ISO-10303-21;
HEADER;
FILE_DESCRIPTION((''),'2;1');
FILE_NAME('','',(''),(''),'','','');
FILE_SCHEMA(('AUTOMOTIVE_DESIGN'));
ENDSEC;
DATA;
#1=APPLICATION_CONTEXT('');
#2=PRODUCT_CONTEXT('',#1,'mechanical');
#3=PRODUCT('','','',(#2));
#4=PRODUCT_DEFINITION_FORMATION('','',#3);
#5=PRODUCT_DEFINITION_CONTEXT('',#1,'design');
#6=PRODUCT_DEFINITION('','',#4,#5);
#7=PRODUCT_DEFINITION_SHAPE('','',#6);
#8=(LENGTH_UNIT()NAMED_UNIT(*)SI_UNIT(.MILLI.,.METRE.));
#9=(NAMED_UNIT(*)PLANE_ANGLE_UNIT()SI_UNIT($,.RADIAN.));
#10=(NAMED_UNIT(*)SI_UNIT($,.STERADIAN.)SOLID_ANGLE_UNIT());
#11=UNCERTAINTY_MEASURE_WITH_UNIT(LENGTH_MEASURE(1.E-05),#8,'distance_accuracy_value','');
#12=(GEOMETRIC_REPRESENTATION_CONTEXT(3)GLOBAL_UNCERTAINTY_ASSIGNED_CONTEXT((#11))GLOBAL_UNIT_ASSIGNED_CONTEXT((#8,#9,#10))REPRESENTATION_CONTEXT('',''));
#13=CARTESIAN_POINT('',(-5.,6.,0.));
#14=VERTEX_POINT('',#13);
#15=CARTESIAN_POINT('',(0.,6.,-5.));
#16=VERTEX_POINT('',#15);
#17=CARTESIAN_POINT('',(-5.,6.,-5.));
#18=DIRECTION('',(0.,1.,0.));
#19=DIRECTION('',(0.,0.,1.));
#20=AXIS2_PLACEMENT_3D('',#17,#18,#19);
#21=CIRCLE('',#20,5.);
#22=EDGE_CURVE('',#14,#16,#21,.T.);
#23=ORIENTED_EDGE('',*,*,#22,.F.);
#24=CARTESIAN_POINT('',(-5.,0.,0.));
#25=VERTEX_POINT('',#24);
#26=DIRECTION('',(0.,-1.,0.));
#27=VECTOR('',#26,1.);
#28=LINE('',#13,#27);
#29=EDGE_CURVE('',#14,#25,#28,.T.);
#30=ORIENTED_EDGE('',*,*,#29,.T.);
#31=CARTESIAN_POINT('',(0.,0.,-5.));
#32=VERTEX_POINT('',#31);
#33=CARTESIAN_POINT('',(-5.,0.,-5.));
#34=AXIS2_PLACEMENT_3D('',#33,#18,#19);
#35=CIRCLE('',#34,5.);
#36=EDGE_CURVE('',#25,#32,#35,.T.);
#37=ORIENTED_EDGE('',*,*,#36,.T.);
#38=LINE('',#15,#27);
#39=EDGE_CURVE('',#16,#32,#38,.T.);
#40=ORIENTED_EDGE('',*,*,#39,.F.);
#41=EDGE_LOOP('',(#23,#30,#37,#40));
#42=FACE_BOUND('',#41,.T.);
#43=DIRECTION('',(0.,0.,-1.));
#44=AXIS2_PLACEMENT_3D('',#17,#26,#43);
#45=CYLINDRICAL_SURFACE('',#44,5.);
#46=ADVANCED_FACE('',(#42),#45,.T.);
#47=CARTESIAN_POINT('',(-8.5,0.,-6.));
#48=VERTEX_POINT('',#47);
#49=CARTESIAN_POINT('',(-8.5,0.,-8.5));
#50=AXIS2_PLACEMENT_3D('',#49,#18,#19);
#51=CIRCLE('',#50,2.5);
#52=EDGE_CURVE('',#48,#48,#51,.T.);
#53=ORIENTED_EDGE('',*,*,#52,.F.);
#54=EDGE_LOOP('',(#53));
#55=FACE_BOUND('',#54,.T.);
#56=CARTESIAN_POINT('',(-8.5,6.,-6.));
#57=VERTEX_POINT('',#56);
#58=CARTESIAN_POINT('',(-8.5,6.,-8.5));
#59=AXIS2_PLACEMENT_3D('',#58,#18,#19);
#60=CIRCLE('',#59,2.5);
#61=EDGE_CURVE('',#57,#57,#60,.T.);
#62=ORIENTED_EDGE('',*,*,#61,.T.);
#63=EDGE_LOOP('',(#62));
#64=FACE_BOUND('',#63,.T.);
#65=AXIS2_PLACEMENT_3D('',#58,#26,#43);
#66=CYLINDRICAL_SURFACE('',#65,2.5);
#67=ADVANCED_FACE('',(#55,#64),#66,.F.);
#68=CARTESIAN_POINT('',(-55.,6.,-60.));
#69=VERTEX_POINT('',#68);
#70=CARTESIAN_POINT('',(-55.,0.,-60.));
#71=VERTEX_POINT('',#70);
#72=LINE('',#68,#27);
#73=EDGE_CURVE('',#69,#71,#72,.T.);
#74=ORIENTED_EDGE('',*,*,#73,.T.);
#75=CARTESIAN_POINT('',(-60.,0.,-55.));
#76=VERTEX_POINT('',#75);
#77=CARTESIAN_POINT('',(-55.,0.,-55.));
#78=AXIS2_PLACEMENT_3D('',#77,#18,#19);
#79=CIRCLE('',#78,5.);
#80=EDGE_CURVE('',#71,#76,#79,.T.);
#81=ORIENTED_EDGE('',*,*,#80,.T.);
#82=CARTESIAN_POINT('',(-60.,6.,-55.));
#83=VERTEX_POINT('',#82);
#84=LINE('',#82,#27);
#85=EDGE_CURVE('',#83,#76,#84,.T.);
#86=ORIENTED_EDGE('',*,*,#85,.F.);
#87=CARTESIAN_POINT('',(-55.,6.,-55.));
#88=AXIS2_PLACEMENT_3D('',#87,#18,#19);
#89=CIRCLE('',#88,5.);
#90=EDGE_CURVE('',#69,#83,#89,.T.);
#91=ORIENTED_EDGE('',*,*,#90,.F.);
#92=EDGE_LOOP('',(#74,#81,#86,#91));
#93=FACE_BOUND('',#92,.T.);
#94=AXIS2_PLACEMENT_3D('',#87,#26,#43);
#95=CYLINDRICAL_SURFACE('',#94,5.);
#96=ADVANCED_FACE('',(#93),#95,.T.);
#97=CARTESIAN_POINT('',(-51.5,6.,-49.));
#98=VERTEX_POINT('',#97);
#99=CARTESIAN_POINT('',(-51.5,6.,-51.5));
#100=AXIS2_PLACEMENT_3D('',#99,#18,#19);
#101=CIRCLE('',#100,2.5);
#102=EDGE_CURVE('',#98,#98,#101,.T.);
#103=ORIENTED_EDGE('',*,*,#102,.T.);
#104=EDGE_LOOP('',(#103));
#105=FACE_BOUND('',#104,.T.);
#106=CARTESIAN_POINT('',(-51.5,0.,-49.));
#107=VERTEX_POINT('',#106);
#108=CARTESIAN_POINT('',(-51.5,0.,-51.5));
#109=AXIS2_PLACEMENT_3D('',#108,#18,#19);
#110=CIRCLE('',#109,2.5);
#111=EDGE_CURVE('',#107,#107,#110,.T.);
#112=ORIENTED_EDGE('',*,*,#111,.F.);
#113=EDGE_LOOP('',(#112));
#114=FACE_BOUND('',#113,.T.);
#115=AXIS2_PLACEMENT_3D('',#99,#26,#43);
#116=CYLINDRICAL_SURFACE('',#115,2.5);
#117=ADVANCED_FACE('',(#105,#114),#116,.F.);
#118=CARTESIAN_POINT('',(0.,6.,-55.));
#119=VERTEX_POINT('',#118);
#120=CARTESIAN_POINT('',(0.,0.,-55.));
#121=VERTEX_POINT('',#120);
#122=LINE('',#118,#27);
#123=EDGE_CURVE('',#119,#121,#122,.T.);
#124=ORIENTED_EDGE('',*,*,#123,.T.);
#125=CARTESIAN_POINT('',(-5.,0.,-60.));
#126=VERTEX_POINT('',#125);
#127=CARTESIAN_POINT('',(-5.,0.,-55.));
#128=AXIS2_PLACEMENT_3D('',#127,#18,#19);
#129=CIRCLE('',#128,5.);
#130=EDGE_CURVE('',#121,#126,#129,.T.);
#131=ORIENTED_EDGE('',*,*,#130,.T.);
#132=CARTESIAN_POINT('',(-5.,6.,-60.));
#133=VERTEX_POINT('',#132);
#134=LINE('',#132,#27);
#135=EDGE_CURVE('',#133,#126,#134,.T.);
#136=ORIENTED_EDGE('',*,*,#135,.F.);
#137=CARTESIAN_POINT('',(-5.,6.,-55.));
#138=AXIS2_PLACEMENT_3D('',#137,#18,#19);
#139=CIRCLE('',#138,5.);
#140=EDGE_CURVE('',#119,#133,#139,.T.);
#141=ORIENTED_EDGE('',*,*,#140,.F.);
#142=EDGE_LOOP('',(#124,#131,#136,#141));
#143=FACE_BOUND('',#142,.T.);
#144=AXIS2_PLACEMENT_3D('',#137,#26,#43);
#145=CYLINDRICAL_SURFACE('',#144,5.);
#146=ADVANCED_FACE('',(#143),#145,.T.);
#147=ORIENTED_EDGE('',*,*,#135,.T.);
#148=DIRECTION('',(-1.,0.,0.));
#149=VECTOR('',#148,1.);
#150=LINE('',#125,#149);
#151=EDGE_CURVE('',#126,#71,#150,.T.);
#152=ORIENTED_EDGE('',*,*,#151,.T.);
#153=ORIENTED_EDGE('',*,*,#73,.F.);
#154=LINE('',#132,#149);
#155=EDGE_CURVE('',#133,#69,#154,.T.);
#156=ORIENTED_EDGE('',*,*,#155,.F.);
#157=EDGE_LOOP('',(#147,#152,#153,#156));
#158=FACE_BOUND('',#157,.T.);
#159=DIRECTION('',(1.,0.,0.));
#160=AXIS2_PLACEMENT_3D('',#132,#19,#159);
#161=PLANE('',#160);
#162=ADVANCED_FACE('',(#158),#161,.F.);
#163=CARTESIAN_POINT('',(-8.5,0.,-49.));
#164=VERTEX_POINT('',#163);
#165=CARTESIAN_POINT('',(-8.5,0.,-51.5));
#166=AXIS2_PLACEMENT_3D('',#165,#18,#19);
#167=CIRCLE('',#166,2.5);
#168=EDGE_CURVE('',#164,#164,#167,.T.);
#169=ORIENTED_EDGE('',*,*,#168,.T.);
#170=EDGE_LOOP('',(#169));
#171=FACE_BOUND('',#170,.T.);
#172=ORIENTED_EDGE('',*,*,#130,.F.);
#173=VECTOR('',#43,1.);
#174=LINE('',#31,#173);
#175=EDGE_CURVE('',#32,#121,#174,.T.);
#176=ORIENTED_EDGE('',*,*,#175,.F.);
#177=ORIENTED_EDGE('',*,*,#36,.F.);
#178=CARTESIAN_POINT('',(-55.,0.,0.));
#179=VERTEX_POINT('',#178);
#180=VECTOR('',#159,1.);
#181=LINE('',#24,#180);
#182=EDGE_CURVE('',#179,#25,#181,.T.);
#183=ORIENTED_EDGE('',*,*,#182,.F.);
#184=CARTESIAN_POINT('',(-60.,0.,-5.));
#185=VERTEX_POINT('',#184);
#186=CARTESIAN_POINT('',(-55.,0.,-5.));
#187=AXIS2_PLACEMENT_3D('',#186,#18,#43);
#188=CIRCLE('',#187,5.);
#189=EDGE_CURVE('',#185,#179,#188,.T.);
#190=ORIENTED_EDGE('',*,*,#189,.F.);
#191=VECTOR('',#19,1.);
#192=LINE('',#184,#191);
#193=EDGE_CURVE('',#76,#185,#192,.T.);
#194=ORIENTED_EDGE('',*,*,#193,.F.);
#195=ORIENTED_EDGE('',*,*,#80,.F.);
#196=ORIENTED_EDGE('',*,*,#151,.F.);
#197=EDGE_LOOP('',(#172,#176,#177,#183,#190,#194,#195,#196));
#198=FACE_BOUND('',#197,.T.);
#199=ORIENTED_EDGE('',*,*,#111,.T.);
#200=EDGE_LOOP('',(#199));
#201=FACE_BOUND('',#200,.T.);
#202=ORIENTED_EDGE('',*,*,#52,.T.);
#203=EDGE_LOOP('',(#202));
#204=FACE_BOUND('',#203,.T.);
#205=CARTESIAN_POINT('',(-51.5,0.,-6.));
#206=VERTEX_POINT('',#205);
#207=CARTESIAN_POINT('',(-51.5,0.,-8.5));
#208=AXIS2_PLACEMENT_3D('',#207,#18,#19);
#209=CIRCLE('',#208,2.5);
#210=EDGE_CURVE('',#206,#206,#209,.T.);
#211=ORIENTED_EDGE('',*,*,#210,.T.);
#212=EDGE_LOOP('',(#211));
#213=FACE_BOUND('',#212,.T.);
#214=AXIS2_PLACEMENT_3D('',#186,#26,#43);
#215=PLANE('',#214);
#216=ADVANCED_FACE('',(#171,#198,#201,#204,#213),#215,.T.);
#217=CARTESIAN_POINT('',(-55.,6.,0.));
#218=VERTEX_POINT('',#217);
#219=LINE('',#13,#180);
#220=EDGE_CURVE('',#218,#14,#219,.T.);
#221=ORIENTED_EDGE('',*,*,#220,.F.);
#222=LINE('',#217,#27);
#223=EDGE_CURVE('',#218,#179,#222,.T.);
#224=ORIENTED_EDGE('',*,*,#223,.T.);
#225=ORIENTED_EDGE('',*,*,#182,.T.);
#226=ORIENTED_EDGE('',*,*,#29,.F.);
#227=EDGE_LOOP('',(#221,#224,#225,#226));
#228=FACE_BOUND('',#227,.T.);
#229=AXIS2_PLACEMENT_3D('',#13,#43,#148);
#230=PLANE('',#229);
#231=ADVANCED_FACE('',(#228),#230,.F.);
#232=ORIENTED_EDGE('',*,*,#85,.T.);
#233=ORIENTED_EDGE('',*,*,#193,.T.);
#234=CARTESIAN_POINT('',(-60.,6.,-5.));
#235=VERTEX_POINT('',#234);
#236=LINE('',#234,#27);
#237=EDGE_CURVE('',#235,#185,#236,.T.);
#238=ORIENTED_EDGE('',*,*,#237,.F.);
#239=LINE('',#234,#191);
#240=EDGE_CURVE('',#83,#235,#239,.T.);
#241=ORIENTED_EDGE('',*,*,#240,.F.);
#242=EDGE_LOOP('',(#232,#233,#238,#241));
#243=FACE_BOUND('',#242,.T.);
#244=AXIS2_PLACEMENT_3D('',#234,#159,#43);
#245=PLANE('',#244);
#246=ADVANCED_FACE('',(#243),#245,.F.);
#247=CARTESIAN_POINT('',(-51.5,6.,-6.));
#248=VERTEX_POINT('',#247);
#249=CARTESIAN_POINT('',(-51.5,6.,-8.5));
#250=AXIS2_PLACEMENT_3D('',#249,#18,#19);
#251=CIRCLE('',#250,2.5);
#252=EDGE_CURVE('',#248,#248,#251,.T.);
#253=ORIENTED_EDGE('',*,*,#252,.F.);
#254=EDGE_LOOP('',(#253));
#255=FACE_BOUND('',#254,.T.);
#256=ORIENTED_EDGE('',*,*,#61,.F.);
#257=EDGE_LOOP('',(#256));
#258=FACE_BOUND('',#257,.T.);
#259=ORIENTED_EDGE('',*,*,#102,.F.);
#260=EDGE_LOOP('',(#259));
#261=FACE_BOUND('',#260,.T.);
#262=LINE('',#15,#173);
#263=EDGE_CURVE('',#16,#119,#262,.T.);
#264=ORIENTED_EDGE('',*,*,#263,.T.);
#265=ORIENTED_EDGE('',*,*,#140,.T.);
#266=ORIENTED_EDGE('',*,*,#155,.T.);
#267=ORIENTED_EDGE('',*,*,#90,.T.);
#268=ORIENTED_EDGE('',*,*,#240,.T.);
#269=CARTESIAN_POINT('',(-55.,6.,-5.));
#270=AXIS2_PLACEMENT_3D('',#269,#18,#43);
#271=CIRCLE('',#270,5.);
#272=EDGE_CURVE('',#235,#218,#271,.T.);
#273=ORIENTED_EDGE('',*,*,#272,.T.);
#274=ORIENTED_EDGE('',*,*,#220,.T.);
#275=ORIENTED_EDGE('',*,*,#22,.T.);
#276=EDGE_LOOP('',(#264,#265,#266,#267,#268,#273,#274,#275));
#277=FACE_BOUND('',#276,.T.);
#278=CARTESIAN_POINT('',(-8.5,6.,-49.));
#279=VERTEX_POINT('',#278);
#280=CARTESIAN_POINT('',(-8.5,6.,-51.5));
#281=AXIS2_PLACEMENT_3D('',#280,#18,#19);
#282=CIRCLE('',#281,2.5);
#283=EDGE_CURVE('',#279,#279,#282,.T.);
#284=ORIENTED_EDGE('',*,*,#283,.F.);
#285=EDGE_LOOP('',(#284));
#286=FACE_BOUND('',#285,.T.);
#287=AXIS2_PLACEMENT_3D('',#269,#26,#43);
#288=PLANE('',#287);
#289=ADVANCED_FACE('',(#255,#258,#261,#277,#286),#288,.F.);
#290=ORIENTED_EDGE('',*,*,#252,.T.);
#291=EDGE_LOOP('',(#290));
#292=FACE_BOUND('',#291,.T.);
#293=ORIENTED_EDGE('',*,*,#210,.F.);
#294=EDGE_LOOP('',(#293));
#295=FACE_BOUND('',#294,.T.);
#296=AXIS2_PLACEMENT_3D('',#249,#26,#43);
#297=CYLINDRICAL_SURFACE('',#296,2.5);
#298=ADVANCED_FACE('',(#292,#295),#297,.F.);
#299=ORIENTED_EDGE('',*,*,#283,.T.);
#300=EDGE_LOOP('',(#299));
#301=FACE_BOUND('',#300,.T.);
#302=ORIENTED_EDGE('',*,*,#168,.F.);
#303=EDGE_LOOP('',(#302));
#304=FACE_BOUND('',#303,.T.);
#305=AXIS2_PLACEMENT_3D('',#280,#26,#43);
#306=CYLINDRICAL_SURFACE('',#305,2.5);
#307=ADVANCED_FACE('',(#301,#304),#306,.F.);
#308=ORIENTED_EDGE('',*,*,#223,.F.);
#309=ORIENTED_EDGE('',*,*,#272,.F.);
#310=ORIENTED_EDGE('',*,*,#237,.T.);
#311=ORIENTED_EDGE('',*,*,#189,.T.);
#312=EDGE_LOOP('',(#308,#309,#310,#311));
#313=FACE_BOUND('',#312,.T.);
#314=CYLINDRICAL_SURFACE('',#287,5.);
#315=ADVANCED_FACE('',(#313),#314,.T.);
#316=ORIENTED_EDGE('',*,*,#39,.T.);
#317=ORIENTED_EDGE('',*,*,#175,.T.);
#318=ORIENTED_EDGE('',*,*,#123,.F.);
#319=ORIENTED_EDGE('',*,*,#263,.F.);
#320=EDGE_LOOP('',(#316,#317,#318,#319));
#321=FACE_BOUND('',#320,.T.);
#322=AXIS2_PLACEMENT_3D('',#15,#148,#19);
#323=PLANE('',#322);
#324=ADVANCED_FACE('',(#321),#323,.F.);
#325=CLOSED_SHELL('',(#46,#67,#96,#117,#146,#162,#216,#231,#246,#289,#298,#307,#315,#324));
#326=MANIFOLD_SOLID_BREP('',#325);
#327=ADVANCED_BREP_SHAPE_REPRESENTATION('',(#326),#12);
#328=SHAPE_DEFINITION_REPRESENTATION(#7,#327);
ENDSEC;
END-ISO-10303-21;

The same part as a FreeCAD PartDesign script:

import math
import FreeCAD as App
import Part
import Sketcher
from FreeCAD import Vector
Q = App.Units.Quantity

doc = App.newDocument("Part")
body = doc.addObject("PartDesign::Body", "Body")

# Sketch on XZ plane
sketch1 = body.newObject("Sketcher::SketchObject", "Sketch")
sketch1.AttachmentSupport = (doc.getObject("XZ_Plane"), [""])
sketch1.MapMode = "FlatFace"
sketch1.addGeometry([
    Part.LineSegment(Vector(-55, 0, 0), Vector(-5, 0, 0)),  # 0
    Part.ArcOfCircle(Part.Circle(Vector(-5, -5, 0), Vector(0, 0, 1), 5), math.radians(0), math.radians(90)),  # 1
    Part.LineSegment(Vector(0, -5, 0), Vector(0, -55, 0)),  # 2
    Part.ArcOfCircle(Part.Circle(Vector(-5, -55, 0), Vector(0, 0, 1), 5), math.radians(-90), math.radians(0)),  # 3
    Part.LineSegment(Vector(-5, -60, 0), Vector(-55, -60, 0)),  # 4
    Part.ArcOfCircle(Part.Circle(Vector(-55, -55, 0), Vector(0, 0, 1), 5), math.radians(180), math.radians(270)),  # 5
    Part.LineSegment(Vector(-60, -55, 0), Vector(-60, -5, 0)),  # 6
    Part.ArcOfCircle(Part.Circle(Vector(-55, -5, 0), Vector(0, 0, 1), 5), math.radians(90), math.radians(180)),  # 7
    Part.Circle(Vector(-8.5, -8.5, 0), Vector(0, 0, 1), 2.5),  # 8
    Part.Circle(Vector(-51.5, -8.5, 0), Vector(0, 0, 1), 2.5),  # 9
    Part.Circle(Vector(-8.5, -51.5, 0), Vector(0, 0, 1), 2.5),  # 10
    Part.Circle(Vector(-51.5, -51.5, 0), Vector(0, 0, 1), 2.5),  # 11
], False)
sketch1.addConstraint([
    Sketcher.Constraint("Tangent", 0, 2, 1, 2),
    Sketcher.Constraint("Tangent", 1, 1, 2, 1),
    Sketcher.Constraint("Tangent", 2, 2, 3, 2),
    Sketcher.Constraint("Tangent", 3, 1, 4, 1),
    Sketcher.Constraint("Tangent", 4, 2, 5, 2),
    Sketcher.Constraint("Tangent", 5, 1, 6, 1),
    Sketcher.Constraint("Tangent", 6, 2, 7, 2),
    Sketcher.Constraint("Tangent", 7, 1, 0, 1),
    Sketcher.Constraint("Horizontal", 0),
    Sketcher.Constraint("Vertical", 2),
    Sketcher.Constraint("Horizontal", 4),
    Sketcher.Constraint("Vertical", 6),
    Sketcher.Constraint("Equal", 1, 3),
    Sketcher.Constraint("Equal", 3, 5),
    Sketcher.Constraint("Equal", 5, 7),
    Sketcher.Constraint("Equal", 8, 9),
    Sketcher.Constraint("Equal", 9, 10),
    Sketcher.Constraint("Equal", 10, 11),
    Sketcher.Constraint("PointOnObject", 0, 2, -1),
    Sketcher.Constraint("PointOnObject", 1, 1, -2),
    Sketcher.Constraint("Horizontal", 8, 3, 9, 3),
    Sketcher.Constraint("Horizontal", 10, 3, 11, 3),
    Sketcher.Constraint("Vertical", 8, 3, 10, 3),
    Sketcher.Constraint("Vertical", 9, 3, 11, 3),
    Sketcher.Constraint("Equal", 4, 2),
    Sketcher.Constraint("Diameter", 8, Q("5 mm")),
    Sketcher.Constraint("Radius", 1, Q("5 mm")),
    Sketcher.Constraint("DistanceX", 0, 1, 0, 2, Q("50 mm")),
    Sketcher.Constraint("DistanceX", 9, 3, 8, 3, Q("43 mm")),
    Sketcher.Constraint("DistanceY", 10, 3, 8, 3, Q("43 mm")),
    Sketcher.Constraint("DistanceX", 8, 3, -1, 1, Q("8.5 mm")),
    Sketcher.Constraint("DistanceY", 8, 3, -1, 1, Q("8.5 mm")),
])
pad1 = body.newObject("PartDesign::Pad", "Pad")
pad1.Profile = sketch1
pad1.Length = 6
pad1.Reversed = True

doc.recompute()
